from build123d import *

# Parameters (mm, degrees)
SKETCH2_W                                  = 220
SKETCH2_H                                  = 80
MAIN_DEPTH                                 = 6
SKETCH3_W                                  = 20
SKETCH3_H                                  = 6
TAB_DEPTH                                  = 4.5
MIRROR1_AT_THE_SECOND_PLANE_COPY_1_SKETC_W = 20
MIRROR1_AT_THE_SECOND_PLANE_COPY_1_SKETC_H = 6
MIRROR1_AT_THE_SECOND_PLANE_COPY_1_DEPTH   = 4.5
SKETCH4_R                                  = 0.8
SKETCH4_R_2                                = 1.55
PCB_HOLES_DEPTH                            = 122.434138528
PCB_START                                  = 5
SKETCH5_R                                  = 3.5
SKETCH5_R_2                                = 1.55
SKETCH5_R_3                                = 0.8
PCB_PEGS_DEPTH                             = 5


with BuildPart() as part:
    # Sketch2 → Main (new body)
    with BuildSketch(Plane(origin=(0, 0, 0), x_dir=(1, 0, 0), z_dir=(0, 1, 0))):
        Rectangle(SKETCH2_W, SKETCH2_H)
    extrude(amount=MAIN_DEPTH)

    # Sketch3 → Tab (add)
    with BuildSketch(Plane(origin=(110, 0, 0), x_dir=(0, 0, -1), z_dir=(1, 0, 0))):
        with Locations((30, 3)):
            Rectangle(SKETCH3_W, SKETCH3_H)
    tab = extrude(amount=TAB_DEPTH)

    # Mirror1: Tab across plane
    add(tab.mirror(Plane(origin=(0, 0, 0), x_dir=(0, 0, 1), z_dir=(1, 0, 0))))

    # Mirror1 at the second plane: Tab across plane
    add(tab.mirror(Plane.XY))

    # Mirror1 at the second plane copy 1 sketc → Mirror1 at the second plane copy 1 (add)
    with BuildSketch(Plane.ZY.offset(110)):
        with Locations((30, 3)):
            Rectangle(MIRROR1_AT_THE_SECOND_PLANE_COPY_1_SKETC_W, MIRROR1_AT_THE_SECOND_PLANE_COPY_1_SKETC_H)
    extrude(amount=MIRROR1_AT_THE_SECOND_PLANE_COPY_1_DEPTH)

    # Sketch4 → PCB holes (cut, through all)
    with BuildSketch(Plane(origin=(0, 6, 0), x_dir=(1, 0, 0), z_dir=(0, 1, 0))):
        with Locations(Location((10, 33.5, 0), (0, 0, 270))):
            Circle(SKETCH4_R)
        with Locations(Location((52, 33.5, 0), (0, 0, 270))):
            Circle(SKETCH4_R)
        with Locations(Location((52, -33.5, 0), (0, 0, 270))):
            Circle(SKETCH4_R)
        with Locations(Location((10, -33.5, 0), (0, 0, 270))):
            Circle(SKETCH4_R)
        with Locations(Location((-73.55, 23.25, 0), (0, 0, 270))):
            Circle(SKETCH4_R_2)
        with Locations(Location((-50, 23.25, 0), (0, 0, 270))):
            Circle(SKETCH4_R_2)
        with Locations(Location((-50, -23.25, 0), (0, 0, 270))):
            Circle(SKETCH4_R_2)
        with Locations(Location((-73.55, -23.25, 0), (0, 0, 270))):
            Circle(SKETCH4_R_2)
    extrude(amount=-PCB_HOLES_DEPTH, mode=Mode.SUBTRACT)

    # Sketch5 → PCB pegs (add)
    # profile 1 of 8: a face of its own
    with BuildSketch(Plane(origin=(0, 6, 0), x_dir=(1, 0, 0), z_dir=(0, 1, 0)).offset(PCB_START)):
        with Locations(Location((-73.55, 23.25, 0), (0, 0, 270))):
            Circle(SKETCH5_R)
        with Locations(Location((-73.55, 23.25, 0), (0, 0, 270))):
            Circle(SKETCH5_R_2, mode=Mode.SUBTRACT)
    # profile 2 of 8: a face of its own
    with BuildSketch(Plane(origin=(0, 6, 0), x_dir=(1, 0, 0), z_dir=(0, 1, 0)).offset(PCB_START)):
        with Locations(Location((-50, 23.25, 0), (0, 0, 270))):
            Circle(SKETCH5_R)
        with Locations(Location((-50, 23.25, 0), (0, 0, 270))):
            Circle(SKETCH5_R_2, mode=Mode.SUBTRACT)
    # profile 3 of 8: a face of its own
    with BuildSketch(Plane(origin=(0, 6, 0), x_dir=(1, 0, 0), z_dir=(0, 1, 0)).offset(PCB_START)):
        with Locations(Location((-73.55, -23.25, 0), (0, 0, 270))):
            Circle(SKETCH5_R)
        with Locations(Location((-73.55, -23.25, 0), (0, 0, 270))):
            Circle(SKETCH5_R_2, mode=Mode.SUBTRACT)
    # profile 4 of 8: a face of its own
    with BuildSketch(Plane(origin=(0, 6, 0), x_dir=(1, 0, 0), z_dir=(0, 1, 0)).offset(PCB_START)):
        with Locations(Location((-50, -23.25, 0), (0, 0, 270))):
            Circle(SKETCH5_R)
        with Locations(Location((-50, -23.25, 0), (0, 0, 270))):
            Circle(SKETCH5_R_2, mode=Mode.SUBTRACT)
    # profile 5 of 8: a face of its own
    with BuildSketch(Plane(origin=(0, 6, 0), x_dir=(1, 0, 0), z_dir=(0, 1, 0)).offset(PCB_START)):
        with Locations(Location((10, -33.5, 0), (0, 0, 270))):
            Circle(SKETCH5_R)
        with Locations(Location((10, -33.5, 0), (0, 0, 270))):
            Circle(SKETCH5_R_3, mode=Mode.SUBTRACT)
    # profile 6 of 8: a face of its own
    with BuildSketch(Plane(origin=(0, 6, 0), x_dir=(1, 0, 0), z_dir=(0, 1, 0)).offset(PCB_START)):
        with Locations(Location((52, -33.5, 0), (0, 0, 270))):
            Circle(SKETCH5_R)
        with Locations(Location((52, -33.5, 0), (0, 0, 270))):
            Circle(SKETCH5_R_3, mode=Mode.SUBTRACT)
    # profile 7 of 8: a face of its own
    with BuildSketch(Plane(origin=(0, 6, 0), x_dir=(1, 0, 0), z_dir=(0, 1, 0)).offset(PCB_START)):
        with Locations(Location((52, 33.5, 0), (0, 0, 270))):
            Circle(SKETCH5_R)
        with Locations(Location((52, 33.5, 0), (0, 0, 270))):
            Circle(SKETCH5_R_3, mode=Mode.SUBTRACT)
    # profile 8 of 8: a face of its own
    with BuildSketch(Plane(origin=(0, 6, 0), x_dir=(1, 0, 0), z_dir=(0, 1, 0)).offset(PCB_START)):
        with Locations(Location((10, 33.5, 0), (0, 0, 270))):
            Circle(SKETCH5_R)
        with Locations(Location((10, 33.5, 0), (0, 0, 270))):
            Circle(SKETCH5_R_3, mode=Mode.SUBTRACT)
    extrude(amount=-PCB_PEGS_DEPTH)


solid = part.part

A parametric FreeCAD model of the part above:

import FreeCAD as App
import Part
import Sketcher
Q = App.Units.Quantity


def add_polygon(sketch, points):
    """Adds a closed chain of lines whose ends are joined by coincident constraints."""
    first, n = sketch.GeometryCount, len(points)
    for a, b in zip(points, points[1:] + points[:1]):
        sketch.addGeometry(Part.LineSegment(App.Vector(*a, 0), App.Vector(*b, 0)), False)
    for i in range(n):
        sketch.addConstraint(Sketcher.Constraint("Coincident", first + i, 2, first + (i + 1) % n, 1))

doc = App.newDocument("Part")
body = doc.addObject("PartDesign::Body", "Body")

# Sketch on XZ plane
sketch1 = doc.addObject("Sketcher::SketchObject", "Sketch")
body.addObject(sketch1)
sketch1.AttachmentSupport = (doc.XZ_Plane, [""])
sketch1.MapMode = "FlatFace"
add_polygon(sketch1, [(-110, -40), (-110, 40), (110, 40), (110, -40)])  # lines 0-3
sketch1.addConstraint([
    Sketcher.Constraint("Vertical", 0),
    Sketcher.Constraint("Horizontal", 1),
    Sketcher.Constraint("Vertical", 2),
    Sketcher.Constraint("Horizontal", 3),
    Sketcher.Constraint("Symmetric", 0, 2, 2, 2, -1, 1),
    Sketcher.Constraint("DistanceX", 1, 1, 1, 2, Q("220 mm")),
    Sketcher.Constraint("DistanceY", 0, 1, 0, 2, Q("80 mm")),
])
pad1 = doc.addObject("PartDesign::Pad", "Pad")
body.addObject(pad1)
pad1.Profile = sketch1
pad1.Length = 6
pad1.Reversed = True

# Sketch on YZ plane
sketch2 = doc.addObject("Sketcher::SketchObject", "Sketch001")
body.addObject(sketch2)
sketch2.AttachmentSupport = (doc.YZ_Plane, [""])
sketch2.MapMode = "FlatFace"
sketch2.AttachmentOffset = App.Placement(App.Vector(0, 0, 110), App.Rotation())
add_polygon(sketch2, [(6, -20), (0, -20), (0, -40), (6, -40)])  # lines 0-3
sketch2.addConstraint([
    Sketcher.Constraint("Horizontal", 0),
    Sketcher.Constraint("Vertical", 1),
    Sketcher.Constraint("Horizontal", 2),
    Sketcher.Constraint("Vertical", 3),
    Sketcher.Constraint("PointOnObject", 0, 2, -2),
    Sketcher.Constraint("DistanceX", 0, 2, 0, 1, Q("6 mm")),
    Sketcher.Constraint("DistanceY", 1, 2, 1, 1, Q("20 mm")),
    Sketcher.Constraint("DistanceY", 0, 2, -1, 1, Q("20 mm")),
])
pad2 = doc.addObject("PartDesign::Pad", "Pad001")
body.addObject(pad2)
pad2.Profile = sketch2
pad2.Length = 4.5
doc.recompute()

mirrored = doc.addObject("PartDesign::Mirrored", "Mirrored")
body.addObject(mirrored)
mirrored.Originals = [pad2]
mirrored.MirrorPlane = (doc.YZ_Plane, [""])
body.Tip = mirrored
doc.recompute()

mirrored2 = doc.addObject("PartDesign::Mirrored", "Mirrored001")
body.addObject(mirrored2)
mirrored2.Originals = [pad2]
mirrored2.MirrorPlane = (doc.XY_Plane, [""])
body.Tip = mirrored2

# Sketch on YZ plane
sketch3 = doc.addObject("Sketcher::SketchObject", "Sketch002")
body.addObject(sketch3)
sketch3.AttachmentSupport = (doc.YZ_Plane, [""])
sketch3.MapMode = "FlatFace"
sketch3.AttachmentOffset = App.Placement(App.Vector(0, 0, -110), App.Rotation())
add_polygon(sketch3, [(6, 20), (0, 20), (0, 40), (6, 40)])  # lines 0-3
sketch3.addConstraint([
    Sketcher.Constraint("Horizontal", 0),
    Sketcher.Constraint("Vertical", 1),
    Sketcher.Constraint("Horizontal", 2),
    Sketcher.Constraint("Vertical", 3),
    Sketcher.Constraint("PointOnObject", 0, 2, -2),
    Sketcher.Constraint("DistanceX", 0, 2, 0, 1, Q("6 mm")),
    Sketcher.Constraint("DistanceY", 1, 1, 1, 2, Q("20 mm")),
    Sketcher.Constraint("DistanceY", -1, 1, 0, 2, Q("20 mm")),
])
pad3 = doc.addObject("PartDesign::Pad", "Pad002")
body.addObject(pad3)
pad3.Profile = sketch3
pad3.Length = 4.5
pad3.Reversed = True

# Sketch on XZ plane
sketch4 = doc.addObject("Sketcher::SketchObject", "Sketch003")
body.addObject(sketch4)
sketch4.AttachmentSupport = (doc.XZ_Plane, [""])
sketch4.MapMode = "FlatFace"
sketch4.AttachmentOffset = App.Placement(App.Vector(0, 0, -6), App.Rotation())
sketch4.addGeometry([
    Part.Circle(App.Vector(10, -33.5, 0), App.Vector(0, 0, 1), 0.8),  # 0
    Part.Circle(App.Vector(52, -33.5, 0), App.Vector(0, 0, 1), 0.8),  # 1
    Part.Circle(App.Vector(52, 33.5, 0), App.Vector(0, 0, 1), 0.8),  # 2
    Part.Circle(App.Vector(10, 33.5, 0), App.Vector(0, 0, 1), 0.8),  # 3
    Part.Circle(App.Vector(-73.5, -23.2, 0), App.Vector(0, 0, 1), 1.6),  # 4
    Part.Circle(App.Vector(-50, -23.2, 0), App.Vector(0, 0, 1), 1.6),  # 5
    Part.Circle(App.Vector(-50, 23.2, 0), App.Vector(0, 0, 1), 1.6),  # 6
    Part.Circle(App.Vector(-73.5, 23.2, 0), App.Vector(0, 0, 1), 1.6),  # 7
], False)
sketch4.addConstraint([
    Sketcher.Constraint("Equal", 0, 1),
    Sketcher.Constraint("Equal", 1, 2),
    Sketcher.Constraint("Equal", 2, 3),
    Sketcher.Constraint("Equal", 4, 5),
    Sketcher.Constraint("Equal", 5, 6),
    Sketcher.Constraint("Equal", 6, 7),
    Sketcher.Constraint("Symmetric", 1, 3, 2, 3, -1),
    Sketcher.Constraint("Symmetric", 0, 3, 3, 3, -1),
    Sketcher.Constraint("Symmetric", 5, 3, 6, 3, -1),
    Sketcher.Constraint("Symmetric", 4, 3, 7, 3, -1),
    Sketcher.Constraint("Horizontal", 0, 3, 1, 3),
    Sketcher.Constraint("Horizontal", 4, 3, 5, 3),
    Sketcher.Constraint("Diameter", 0, Q("1.6 mm")),
    Sketcher.Constraint("Diameter", 4, Q("3.1 mm")),
    Sketcher.Constraint("DistanceX", -1, 1, 0, 3, Q("10 mm")),
    Sketcher.Constraint("DistanceX", -1, 1, 1, 3, Q("52 mm")),
    Sketcher.Constraint("DistanceX", 5, 3, -1, 1, Q("50 mm")),
    Sketcher.Constraint("DistanceY", 1, 3, 2, 3, Q("67 mm")),
    Sketcher.Constraint("DistanceY", 5, 3, 6, 3, Q("46.5 mm")),
    Sketcher.Constraint("DistanceX", 4, 3, -1, 1, Q("73.55 mm")),
])
pocket1 = doc.addObject("PartDesign::Pocket", "Pocket")
body.addObject(pocket1)
pocket1.Profile = sketch4
pocket1.Type = "ThroughAll"
pocket1.Reversed = True

# Sketch on XZ plane
sketch5 = doc.addObject("Sketcher::SketchObject", "Sketch004")
body.addObject(sketch5)
sketch5.AttachmentSupport = (doc.XZ_Plane, [""])
sketch5.MapMode = "FlatFace"
sketch5.AttachmentOffset = App.Placement(App.Vector(0, 0, -11), App.Rotation())
sketch5.addGeometry([
    Part.Circle(App.Vector(-73.5, -23.2, 0), App.Vector(0, 0, 1), 3.5),  # 0
    Part.Circle(App.Vector(-73.5, -23.2, 0), App.Vector(0, 0, 1), 1.6),  # 1
    Part.Circle(App.Vector(-50, -23.2, 0), App.Vector(0, 0, 1), 3.5),  # 2
    Part.Circle(App.Vector(-50, -23.2, 0), App.Vector(0, 0, 1), 1.6),  # 3
    Part.Circle(App.Vector(-73.5, 23.2, 0), App.Vector(0, 0, 1), 3.5),  # 4
    Part.Circle(App.Vector(-73.5, 23.2, 0), App.Vector(0, 0, 1), 1.6),  # 5
    Part.Circle(App.Vector(-50, 23.2, 0), App.Vector(0, 0, 1), 3.5),  # 6
    Part.Circle(App.Vector(-50, 23.2, 0), App.Vector(0, 0, 1), 1.6),  # 7
    Part.Circle(App.Vector(10, 33.5, 0), App.Vector(0, 0, 1), 3.5),  # 8
    Part.Circle(App.Vector(10, 33.5, 0), App.Vector(0, 0, 1), 0.8),  # 9
    Part.Circle(App.Vector(52, 33.5, 0), App.Vector(0, 0, 1), 3.5),  # 10
    Part.Circle(App.Vector(52, 33.5, 0), App.Vector(0, 0, 1), 0.8),  # 11
    Part.Circle(App.Vector(52, -33.5, 0), App.Vector(0, 0, 1), 3.5),  # 12
    Part.Circle(App.Vector(52, -33.5, 0), App.Vector(0, 0, 1), 0.8),  # 13
    Part.Circle(App.Vector(10, -33.5, 0), App.Vector(0, 0, 1), 3.5),  # 14
    Part.Circle(App.Vector(10, -33.5, 0), App.Vector(0, 0, 1), 0.8),  # 15
], False)
sketch5.addConstraint([
    Sketcher.Constraint("Coincident", 1, 3, 0, 3),
    Sketcher.Constraint("Coincident", 3, 3, 2, 3),
    Sketcher.Constraint("Coincident", 5, 3, 4, 3),
    Sketcher.Constraint("Coincident", 7, 3, 6, 3),
    Sketcher.Constraint("Coincident", 9, 3, 8, 3),
    Sketcher.Constraint("Coincident", 11, 3, 10, 3),
    Sketcher.Constraint("Coincident", 13, 3, 12, 3),
    Sketcher.Constraint("Coincident", 15, 3, 14, 3),
    Sketcher.Constraint("Equal", 0, 2),
    Sketcher.Constraint("Equal", 1, 3),
    Sketcher.Constraint("Equal", 2, 4),
    Sketcher.Constraint("Equal", 3, 5),
    Sketcher.Constraint("Equal", 4, 6),
    Sketcher.Constraint("Equal", 5, 7),
    Sketcher.Constraint("Equal", 6, 8),
    Sketcher.Constraint("Equal", 8, 10),
    Sketcher.Constraint("Equal", 9, 11),
    Sketcher.Constraint("Equal", 10, 12),
    Sketcher.Constraint("Equal", 11, 13),
    Sketcher.Constraint("Equal", 12, 14),
    Sketcher.Constraint("Equal", 13, 15),
    Sketcher.Constraint("Symmetric", 0, 3, 4, 3, -1),
    Sketcher.Constraint("Symmetric", 2, 3, 6, 3, -1),
    Sketcher.Constraint("Symmetric", 10, 3, 12, 3, -1),
    Sketcher.Constraint("Symmetric", 8, 3, 14, 3, -1),
    Sketcher.Constraint("Horizontal", 1, 3, 2, 3),
    Sketcher.Constraint("Horizontal", 9, 3, 10, 3),
    Sketcher.Constraint("Diameter", 0, Q("7 mm")),
    Sketcher.Constraint("Diameter", 1, Q("3.1 mm")),
    Sketcher.Constraint("Diameter", 9, Q("1.6 mm")),
    Sketcher.Constraint("DistanceX", 2, 3, -1, 1, Q("50 mm")),
    Sketcher.Constraint("DistanceX", -1, 1, 8, 3, Q("10 mm")),
    Sketcher.Constraint("DistanceX", -1, 1, 10, 3, Q("52 mm")),
    Sketcher.Constraint("DistanceY", 12, 3, 10, 3, Q("67 mm")),
    Sketcher.Constraint("DistanceY", 0, 3, 4, 3, Q("46.5 mm")),
    Sketcher.Constraint("DistanceX", 0, 3, -1, 1, Q("73.55 mm")),
])
pad4 = doc.addObject("PartDesign::Pad", "Pad003")
body.addObject(pad4)
pad4.Profile = sketch5
pad4.Length = 5

doc.recompute()
